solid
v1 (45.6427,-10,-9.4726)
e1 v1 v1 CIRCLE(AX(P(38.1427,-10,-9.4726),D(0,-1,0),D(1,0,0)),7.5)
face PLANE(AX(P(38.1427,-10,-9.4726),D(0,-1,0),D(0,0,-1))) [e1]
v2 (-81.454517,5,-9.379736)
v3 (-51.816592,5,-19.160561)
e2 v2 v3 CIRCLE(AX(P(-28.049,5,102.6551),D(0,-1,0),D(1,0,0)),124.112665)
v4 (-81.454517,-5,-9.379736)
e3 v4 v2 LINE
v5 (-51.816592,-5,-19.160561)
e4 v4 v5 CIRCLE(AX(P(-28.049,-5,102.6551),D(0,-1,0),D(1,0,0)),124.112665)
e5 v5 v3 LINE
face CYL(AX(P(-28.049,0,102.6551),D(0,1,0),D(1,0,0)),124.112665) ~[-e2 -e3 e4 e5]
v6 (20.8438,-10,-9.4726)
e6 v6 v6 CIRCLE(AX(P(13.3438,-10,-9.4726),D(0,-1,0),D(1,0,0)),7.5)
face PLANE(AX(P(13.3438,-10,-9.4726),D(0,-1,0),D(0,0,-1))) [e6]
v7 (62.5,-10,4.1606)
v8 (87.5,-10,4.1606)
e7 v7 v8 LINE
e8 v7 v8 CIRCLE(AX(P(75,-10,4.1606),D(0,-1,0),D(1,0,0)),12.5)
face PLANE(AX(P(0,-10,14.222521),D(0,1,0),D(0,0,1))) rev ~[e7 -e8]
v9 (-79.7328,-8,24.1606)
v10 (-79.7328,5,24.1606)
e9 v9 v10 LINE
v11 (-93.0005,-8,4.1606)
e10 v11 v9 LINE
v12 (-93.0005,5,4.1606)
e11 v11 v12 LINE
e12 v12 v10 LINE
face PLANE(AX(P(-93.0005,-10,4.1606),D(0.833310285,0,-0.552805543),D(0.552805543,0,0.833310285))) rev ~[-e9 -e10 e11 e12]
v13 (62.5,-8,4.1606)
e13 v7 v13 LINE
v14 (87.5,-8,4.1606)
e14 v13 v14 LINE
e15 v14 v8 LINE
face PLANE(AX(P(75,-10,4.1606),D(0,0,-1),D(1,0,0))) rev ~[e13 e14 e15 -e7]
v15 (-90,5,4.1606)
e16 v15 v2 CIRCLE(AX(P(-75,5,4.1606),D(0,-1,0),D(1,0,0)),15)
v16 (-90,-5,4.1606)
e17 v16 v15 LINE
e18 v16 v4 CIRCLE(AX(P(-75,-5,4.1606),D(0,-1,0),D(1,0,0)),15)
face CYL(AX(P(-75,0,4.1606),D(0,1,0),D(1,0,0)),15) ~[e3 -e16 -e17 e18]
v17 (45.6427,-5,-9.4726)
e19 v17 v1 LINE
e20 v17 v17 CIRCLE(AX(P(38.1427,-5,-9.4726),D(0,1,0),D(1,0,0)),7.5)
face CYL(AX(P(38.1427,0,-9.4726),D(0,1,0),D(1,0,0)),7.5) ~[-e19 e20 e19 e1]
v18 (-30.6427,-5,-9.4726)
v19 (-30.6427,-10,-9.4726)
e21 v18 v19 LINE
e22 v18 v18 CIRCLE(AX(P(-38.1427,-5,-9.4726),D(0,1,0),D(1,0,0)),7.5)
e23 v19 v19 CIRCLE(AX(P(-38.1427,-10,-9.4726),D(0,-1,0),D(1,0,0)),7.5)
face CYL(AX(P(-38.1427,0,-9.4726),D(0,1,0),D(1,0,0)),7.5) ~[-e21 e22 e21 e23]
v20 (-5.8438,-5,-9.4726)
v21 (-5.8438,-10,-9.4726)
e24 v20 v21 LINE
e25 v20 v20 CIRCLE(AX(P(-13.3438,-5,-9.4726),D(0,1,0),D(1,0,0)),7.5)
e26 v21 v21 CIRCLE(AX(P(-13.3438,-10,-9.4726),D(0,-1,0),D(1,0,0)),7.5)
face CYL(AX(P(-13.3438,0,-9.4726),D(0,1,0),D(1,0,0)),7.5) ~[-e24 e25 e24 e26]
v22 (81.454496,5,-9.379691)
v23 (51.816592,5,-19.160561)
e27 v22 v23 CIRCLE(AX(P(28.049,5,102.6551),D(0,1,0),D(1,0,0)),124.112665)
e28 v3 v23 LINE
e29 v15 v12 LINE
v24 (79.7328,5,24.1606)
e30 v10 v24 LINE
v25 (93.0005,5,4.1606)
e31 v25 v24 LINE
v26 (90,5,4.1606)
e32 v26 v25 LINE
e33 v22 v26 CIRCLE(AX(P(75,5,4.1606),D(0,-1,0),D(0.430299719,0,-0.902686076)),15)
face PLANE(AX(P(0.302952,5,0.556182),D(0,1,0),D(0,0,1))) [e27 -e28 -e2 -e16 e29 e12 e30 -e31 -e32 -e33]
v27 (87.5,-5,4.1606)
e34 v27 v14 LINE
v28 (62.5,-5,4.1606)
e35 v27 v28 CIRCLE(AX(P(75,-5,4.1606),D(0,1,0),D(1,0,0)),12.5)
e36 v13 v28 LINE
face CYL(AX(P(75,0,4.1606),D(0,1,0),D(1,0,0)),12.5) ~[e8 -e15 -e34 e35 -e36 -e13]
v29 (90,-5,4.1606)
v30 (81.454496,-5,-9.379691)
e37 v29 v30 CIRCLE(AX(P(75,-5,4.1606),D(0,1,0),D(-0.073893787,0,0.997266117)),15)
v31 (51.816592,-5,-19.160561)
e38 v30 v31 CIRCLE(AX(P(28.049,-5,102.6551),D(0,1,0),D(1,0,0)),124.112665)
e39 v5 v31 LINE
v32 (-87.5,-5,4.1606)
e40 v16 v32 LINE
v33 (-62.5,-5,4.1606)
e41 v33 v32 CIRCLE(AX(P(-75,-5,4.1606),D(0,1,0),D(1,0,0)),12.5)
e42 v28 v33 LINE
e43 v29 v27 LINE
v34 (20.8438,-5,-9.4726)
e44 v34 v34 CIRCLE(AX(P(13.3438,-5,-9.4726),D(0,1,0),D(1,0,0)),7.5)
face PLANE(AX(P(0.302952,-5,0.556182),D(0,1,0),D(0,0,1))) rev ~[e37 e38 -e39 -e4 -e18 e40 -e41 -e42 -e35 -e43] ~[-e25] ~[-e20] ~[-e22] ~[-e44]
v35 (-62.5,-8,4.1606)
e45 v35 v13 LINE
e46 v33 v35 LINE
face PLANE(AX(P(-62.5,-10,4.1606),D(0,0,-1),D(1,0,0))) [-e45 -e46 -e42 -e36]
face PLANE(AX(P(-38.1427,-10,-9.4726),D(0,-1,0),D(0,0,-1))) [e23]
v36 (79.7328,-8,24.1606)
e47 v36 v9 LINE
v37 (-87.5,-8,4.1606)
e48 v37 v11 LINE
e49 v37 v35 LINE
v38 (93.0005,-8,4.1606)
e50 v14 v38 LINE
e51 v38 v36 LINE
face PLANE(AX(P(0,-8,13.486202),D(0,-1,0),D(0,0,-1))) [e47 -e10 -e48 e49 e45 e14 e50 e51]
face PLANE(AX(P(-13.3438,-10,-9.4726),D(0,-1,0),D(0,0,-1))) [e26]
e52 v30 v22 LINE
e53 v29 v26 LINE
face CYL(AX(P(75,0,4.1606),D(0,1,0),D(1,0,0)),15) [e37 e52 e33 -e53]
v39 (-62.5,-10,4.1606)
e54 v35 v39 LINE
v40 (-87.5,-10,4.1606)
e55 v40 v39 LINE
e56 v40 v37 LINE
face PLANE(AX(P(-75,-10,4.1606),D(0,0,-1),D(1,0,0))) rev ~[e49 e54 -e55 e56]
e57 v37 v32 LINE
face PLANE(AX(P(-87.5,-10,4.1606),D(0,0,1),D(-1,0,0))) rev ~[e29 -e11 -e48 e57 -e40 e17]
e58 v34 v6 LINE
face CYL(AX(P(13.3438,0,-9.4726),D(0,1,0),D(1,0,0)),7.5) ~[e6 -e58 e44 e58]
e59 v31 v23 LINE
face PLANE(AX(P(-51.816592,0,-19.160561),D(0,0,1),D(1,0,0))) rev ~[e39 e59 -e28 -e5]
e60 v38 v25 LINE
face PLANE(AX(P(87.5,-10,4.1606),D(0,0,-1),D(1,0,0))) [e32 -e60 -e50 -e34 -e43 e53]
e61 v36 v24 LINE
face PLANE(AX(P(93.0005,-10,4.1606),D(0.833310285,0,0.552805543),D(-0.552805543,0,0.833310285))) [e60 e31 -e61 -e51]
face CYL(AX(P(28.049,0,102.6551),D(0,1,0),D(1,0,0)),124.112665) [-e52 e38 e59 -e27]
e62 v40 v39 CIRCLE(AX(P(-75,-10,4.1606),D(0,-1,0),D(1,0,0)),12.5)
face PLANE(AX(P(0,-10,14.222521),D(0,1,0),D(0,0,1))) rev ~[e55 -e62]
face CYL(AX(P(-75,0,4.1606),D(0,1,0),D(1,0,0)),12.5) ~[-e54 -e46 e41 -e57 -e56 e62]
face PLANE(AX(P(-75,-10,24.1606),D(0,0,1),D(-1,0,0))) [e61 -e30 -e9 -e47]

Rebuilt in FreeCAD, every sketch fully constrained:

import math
import FreeCAD as App
import Part
import Sketcher
Q = App.Units.Quantity

doc = App.newDocument("Part")
body = doc.addObject("PartDesign::Body", "Body")

# Sketch on XZ plane
sketch1 = doc.addObject("Sketcher::SketchObject", "Sketch")
body.addObject(sketch1)
sketch1.AttachmentSupport = (doc.XZ_Plane, [""])
sketch1.MapMode = "FlatFace"
sketch1.addGeometry([
    Part.ArcOfCircle(Part.Circle(App.Vector(75, 4, 0), App.Vector(0, 0, 1), 15), math.radians(-65), math.radians(-30)),  # 0
    Part.ArcOfCircle(Part.Circle(App.Vector(75, 4, 0), App.Vector(0, 0, 1), 15), math.radians(-30), math.radians(0)),  # 1
    Part.ArcOfCircle(Part.Circle(App.Vector(75, 4, 0), App.Vector(0, 0, 1), 15), math.radians(0), math.radians(94)),  # 2
    Part.ArcOfCircle(Part.Circle(App.Vector(0, 1016, 0), App.Vector(0, 0, 1), 1000), math.radians(-94.24), math.radians(-85.76)),  # 3
    Part.ArcOfCircle(Part.Circle(App.Vector(-75, 4, 0), App.Vector(0, 0, 1), 15), math.radians(86), math.radians(245)),  # 4
    Part.ArcOfCircle(Part.Circle(App.Vector(-28, 103, 0), App.Vector(0, 0, 1), 124), math.radians(-115.49), math.radians(-101.04)),  # 5
    Part.LineSegment(App.Vector(-52, -19, 0), App.Vector(52, -19, 0)),  # 6
    Part.ArcOfCircle(Part.Circle(App.Vector(28, 103, 0), App.Vector(0, 0, 1), 124), math.radians(-78.96), math.radians(-64.51)),  # 7
], False)
sketch1.addConstraint([
    Sketcher.Constraint("Tangent", 0, 2, 1, 1),
    Sketcher.Constraint("Tangent", 1, 2, 2, 1),
    Sketcher.Constraint("Tangent", 2, 2, 3, 2),
    Sketcher.Constraint("Tangent", 3, 1, 4, 1),
    Sketcher.Constraint("Tangent", 4, 2, 5, 1),
    Sketcher.Constraint("Coincident", 5, 2, 6, 1),
    Sketcher.Constraint("Coincident", 6, 2, 7, 1),
    Sketcher.Constraint("Tangent", 7, 2, 0, 1),
    Sketcher.Constraint("Horizontal", 6),
    Sketcher.Constraint("Coincident", 2, 3, 0, 3),
    Sketcher.Constraint("Equal", 2, 4),
    Sketcher.Constraint("Equal", 5, 7),
    Sketcher.Constraint("Symmetric", 0, 3, 4, 3, -2),
    Sketcher.Constraint("Horizontal", 5, 3, 7, 3),
    Sketcher.Constraint("Radius", 0, Q("15 mm")),
    Sketcher.Constraint("Radius", 3, Q("1000 mm")),
    Sketcher.Constraint("DistanceX", -1, 1, 0, 3, Q("75 mm")),
    Sketcher.Constraint("Radius", 5, Q("124.1176 mm")),
    Sketcher.Constraint("DistanceY", 0, 2, 0, 3, Q("7.5 mm")),
    Sketcher.Constraint("DistanceY", 5, 2, 3, 1, Q("38.28 mm")),
    Sketcher.Constraint("DistanceX", 6, 1, 6, 2, Q("103.6332 mm")),
    Sketcher.Constraint("DistanceY", -1, 1, 1, 2, Q("4.062 mm")),
    Sketcher.Constraint("DistanceY", -1, 1, 0, 3, Q("4.1606 mm")),
])
pad1 = doc.addObject("PartDesign::Pad", "Pad")
body.addObject(pad1)
pad1.Profile = sketch1
pad1.Length = 10
pad1.Midplane = True

# Sketch on XZ plane
sketch2 = doc.addObject("Sketcher::SketchObject", "Sketch001")
body.addObject(sketch2)
sketch2.AttachmentSupport = (doc.XZ_Plane, [""])
sketch2.MapMode = "FlatFace"
sketch2.addGeometry([
    Part.Circle(App.Vector(-75, 4, 0), App.Vector(0, 0, 1), 12),  # 0
    Part.Circle(App.Vector(-38, -9, 0), App.Vector(0, 0, 1), 8),  # 1
    Part.Circle(App.Vector(-13, -9, 0), App.Vector(0, 0, 1), 8),  # 2
    Part.Circle(App.Vector(13, -9, 0), App.Vector(0, 0, 1), 8),  # 3
    Part.Circle(App.Vector(38, -9, 0), App.Vector(0, 0, 1), 8),  # 4
    Part.Circle(App.Vector(75, 4, 0), App.Vector(0, 0, 1), 12),  # 5
], False)
sketch2.addConstraint([
    Sketcher.Constraint("Equal", 1, 2),
    Sketcher.Constraint("Equal", 2, 3),
    Sketcher.Constraint("Equal", 3, 4),
    Sketcher.Constraint("Equal", 0, 5),
    Sketcher.Constraint("Symmetric", 2, 3, 3, 3, -2),
    Sketcher.Constraint("Symmetric", 1, 3, 4, 3, -2),
    Sketcher.Constraint("Symmetric", 0, 3, 5, 3, -2),
    Sketcher.Constraint("Horizontal", 1, 3, 2, 3),
    Sketcher.Constraint("Diameter", 0, Q("25 mm")),
    Sketcher.Constraint("Diameter", 1, Q("15 mm")),
    Sketcher.Constraint("DistanceX", 0, 3, -1, 1, Q("75 mm")),
    Sketcher.Constraint("DistanceX", 1, 3, 2, 3, Q("24.799 mm")),
    Sketcher.Constraint("DistanceY", -1, 1, 0, 3, Q("4.1606 mm")),
    Sketcher.Constraint("DistanceX", 1, 3, -1, 1, Q("38.1427 mm")),
    Sketcher.Constraint("DistanceY", 1, 3, -1, 1, Q("9.4726 mm")),
])
pad2 = doc.addObject("PartDesign::Pad", "Pad001")
body.addObject(pad2)
pad2.Profile = sketch2
pad2.Length = 10

# Sketch on XZ plane
sketch3 = doc.addObject("Sketcher::SketchObject", "Sketch002")
body.addObject(sketch3)
sketch3.AttachmentSupport = (doc.XZ_Plane, [""])
sketch3.MapMode = "FlatFace"
sketch3.AttachmentOffset = App.Placement(App.Vector(0, 0, 10), App.Rotation())
sketch3.addGeometry([
    Part.ArcOfCircle(Part.Circle(App.Vector(75, 4, 0), App.Vector(0, 0, 1), 12), math.radians(0), math.radians(180)),  # 0
    Part.LineSegment(App.Vector(88, 4, 0), App.Vector(93, 4, 0)),  # 1
    Part.LineSegment(App.Vector(93, 4, 0), App.Vector(80, 24, 0)),  # 2
    Part.LineSegment(App.Vector(80, 24, 0), App.Vector(-80, 24, 0)),  # 3
    Part.LineSegment(App.Vector(-80, 24, 0), App.Vector(-93, 4, 0)),  # 4
    Part.LineSegment(App.Vector(-93, 4, 0), App.Vector(-88, 4, 0)),  # 5
    Part.ArcOfCircle(Part.Circle(App.Vector(-75, 4, 0), App.Vector(0, 0, 1), 12), math.radians(0), math.radians(180)),  # 6
    Part.LineSegment(App.Vector(-62, 4, 0), App.Vector(62, 4, 0)),  # 7
], False)
sketch3.addConstraint([
    Sketcher.Constraint("Coincident", 0, 1, 1, 1),
    Sketcher.Constraint("Coincident", 1, 2, 2, 1),
    Sketcher.Constraint("Coincident", 2, 2, 3, 1),
    Sketcher.Constraint("Coincident", 3, 2, 4, 1),
    Sketcher.Constraint("Coincident", 4, 2, 5, 1),
    Sketcher.Constraint("Coincident", 5, 2, 6, 2),
    Sketcher.Constraint("Coincident", 6, 1, 7, 1),
    Sketcher.Constraint("Coincident", 7, 2, 0, 2),
    Sketcher.Constraint("Horizontal", 1),
    Sketcher.Constraint("Horizontal", 3),
    Sketcher.Constraint("Horizontal", 5),
    Sketcher.Constraint("Horizontal", 7),
    Sketcher.Constraint("Equal", 0, 6),
    Sketcher.Constraint("Symmetric", 0, 3, 6, 3, -2),
    Sketcher.Constraint("Symmetric", 1, 2, 4, 2, -2),
    Sketcher.Constraint("Horizontal", 6, 3, 0, 1),
    Sketcher.Constraint("Horizontal", 5, 2, 6, 1),
    Sketcher.Constraint("Equal", 2, 4),
    Sketcher.Constraint("Radius", 0, Q("12.5 mm")),
    Sketcher.Constraint("DistanceX", 7, 1, 7, 2, Q("125 mm")),
    Sketcher.Constraint("DistanceY", 0, 3, 2, 2, Q("20 mm")),
    Sketcher.Constraint("Angle", 2, Q("123.5597 deg")),
    Sketcher.Constraint("DistanceX", 1, 1, 1, 2, Q("5.5005 mm")),
    Sketcher.Constraint("DistanceY", -1, 1, 0, 3, Q("4.1606 mm")),
])
pad3 = doc.addObject("PartDesign::Pad", "Pad002")
body.addObject(pad3)
pad3.Profile = sketch3
pad3.Length = 15
pad3.Reversed = True

# Sketch on XZ plane
sketch4 = doc.addObject("Sketcher::SketchObject", "Sketch003")
body.addObject(sketch4)
sketch4.AttachmentSupport = (doc.XZ_Plane, [""])
sketch4.MapMode = "FlatFace"
sketch4.AttachmentOffset = App.Placement(App.Vector(0, 0, 10), App.Rotation())
sketch4.addGeometry([
    Part.LineSegment(App.Vector(-93, 4, 0), App.Vector(93, 4, 0)),
    Part.LineSegment(App.Vector(93, 4, 0), App.Vector(80, 24, 0)),
    Part.LineSegment(App.Vector(80, 24, 0), App.Vector(-80, 24, 0)),
    Part.LineSegment(App.Vector(-80, 24, 0), App.Vector(-93, 4, 0)),
], False)
sketch4.addConstraint([
    Sketcher.Constraint("Coincident", 0, 2, 1, 1),
    Sketcher.Constraint("Coincident", 1, 2, 2, 1),
    Sketcher.Constraint("Coincident", 2, 2, 3, 1),
    Sketcher.Constraint("Coincident", 3, 2, 0, 1),
    Sketcher.Constraint("Horizontal", 0),
    Sketcher.Constraint("Horizontal", 2),
    Sketcher.Constraint("Equal", 1, 3),
    Sketcher.Constraint("DistanceY", 0, 2, 1, 2, Q("20 mm")),
    Sketcher.Constraint("Angle", 1, Q("123.5597 deg")),
    Sketcher.Constraint("DistanceX", 0, 1, 0, 2, Q("186.001 mm")),
    Sketcher.Constraint("DistanceX", -1, 1, 0, 2, Q("93.0005 mm")),
    Sketcher.Constraint("DistanceY", -1, 1, 0, 2, Q("4.1606 mm")),
])
pocket1 = doc.addObject("PartDesign::Pocket", "Pocket")
body.addObject(pocket1)
pocket1.Profile = sketch4
pocket1.Length = 2

doc.recompute()
